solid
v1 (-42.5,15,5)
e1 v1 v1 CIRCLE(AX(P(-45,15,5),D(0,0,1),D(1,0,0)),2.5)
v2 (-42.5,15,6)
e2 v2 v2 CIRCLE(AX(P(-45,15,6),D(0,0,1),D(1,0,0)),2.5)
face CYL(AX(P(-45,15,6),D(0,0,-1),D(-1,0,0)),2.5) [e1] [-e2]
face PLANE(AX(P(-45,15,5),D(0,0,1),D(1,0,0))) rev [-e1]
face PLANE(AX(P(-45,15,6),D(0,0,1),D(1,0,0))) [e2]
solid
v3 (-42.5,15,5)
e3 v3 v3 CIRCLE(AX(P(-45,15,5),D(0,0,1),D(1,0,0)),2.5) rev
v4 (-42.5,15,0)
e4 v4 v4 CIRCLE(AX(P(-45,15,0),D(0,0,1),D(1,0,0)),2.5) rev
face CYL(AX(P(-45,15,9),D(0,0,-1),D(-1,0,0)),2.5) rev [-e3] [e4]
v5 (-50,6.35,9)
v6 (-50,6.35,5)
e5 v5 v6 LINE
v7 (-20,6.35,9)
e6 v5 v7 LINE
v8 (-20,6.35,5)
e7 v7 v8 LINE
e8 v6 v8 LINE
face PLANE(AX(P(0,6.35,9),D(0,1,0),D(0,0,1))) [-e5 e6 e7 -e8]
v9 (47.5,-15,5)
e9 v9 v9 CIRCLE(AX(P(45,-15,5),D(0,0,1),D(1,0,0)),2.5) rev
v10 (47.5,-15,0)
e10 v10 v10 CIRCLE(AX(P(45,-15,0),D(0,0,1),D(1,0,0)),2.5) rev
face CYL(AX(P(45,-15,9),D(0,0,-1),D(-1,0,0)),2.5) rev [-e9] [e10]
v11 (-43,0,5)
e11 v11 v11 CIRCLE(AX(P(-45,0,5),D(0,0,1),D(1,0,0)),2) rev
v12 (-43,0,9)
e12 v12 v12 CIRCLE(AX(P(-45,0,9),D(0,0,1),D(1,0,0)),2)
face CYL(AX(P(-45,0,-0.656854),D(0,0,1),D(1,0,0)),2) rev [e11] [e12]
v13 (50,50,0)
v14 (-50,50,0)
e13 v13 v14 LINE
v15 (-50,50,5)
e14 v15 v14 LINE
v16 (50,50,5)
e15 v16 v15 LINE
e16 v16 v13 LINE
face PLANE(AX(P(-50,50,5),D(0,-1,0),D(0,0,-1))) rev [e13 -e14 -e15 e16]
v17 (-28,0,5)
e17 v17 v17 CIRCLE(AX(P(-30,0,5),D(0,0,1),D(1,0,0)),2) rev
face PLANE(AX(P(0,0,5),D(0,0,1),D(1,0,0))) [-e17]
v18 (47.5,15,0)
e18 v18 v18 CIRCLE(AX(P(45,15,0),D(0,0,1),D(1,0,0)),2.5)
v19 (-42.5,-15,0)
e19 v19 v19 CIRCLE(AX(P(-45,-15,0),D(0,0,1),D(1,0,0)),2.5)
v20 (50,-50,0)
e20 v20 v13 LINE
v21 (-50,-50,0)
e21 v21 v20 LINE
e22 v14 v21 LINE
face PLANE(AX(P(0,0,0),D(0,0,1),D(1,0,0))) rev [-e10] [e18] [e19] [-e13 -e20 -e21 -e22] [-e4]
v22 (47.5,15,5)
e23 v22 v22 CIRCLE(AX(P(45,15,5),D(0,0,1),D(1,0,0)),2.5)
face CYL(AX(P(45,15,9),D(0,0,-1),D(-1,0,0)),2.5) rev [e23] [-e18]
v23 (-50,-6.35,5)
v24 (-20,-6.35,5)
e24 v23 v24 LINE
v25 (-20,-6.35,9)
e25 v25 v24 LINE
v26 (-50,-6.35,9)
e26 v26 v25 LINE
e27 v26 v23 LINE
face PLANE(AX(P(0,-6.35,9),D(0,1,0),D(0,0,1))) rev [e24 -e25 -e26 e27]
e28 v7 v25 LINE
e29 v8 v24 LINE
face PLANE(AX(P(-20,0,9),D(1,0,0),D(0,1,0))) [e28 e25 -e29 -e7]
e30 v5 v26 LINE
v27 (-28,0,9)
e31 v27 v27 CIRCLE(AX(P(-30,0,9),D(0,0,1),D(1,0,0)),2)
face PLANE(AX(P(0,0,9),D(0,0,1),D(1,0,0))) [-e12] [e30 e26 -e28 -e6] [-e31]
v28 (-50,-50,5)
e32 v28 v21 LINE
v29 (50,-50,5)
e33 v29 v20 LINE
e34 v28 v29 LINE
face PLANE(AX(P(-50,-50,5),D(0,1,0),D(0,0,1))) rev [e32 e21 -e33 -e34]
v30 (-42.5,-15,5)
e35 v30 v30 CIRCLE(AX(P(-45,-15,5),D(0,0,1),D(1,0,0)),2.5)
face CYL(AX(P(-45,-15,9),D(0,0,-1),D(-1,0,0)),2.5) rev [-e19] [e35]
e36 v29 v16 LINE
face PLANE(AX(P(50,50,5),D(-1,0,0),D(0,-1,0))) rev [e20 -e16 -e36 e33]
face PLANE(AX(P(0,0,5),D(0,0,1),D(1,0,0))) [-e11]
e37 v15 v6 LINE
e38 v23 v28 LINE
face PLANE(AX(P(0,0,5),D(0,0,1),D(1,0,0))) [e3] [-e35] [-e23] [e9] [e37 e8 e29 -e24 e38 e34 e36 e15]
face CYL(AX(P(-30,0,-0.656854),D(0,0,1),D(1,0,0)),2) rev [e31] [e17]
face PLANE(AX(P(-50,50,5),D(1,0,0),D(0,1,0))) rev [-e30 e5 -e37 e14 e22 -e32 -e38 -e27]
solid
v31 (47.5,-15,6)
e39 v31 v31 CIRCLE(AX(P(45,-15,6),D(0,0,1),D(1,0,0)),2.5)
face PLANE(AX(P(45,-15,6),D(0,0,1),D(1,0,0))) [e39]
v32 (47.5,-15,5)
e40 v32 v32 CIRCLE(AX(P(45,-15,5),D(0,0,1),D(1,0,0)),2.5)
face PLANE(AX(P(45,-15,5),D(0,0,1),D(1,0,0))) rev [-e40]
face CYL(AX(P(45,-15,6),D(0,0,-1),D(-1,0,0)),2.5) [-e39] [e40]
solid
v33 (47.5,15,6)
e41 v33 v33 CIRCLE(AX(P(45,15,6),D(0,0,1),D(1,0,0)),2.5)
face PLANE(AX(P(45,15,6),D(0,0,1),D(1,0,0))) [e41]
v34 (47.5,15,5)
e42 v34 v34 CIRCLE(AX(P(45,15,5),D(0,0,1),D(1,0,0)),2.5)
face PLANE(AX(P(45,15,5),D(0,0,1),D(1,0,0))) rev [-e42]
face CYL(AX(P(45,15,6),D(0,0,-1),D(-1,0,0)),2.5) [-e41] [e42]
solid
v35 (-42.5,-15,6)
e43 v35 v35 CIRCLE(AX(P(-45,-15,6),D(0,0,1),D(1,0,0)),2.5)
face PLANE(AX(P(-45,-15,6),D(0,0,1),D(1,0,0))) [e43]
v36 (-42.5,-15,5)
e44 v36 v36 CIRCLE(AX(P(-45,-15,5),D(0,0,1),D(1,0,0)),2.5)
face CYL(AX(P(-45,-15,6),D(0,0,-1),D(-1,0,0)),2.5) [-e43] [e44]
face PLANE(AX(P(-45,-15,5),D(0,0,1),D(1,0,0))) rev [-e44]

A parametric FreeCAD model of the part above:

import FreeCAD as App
import Part
import Sketcher

V = App.Vector

doc = App.newDocument("Part")
body = doc.addObject("PartDesign::Body", "Body")

sketch1 = body.newObject("Sketcher::SketchObject", "Sketch")
sketch1.AttachmentSupport = (doc.getObject("XY_Plane"), [""])
sketch1.MapMode = "FlatFace"
sketch1.addGeometry([
    Part.LineSegment(V(-50, 50, 0), V(-50, -50, 0)),
    Part.LineSegment(V(-50, -50, 0), V(50, -50, 0)),
    Part.LineSegment(V(50, -50, 0), V(50, 50, 0)),
    Part.LineSegment(V(50, 50, 0), V(-50, 50, 0)),
], False)
sketch1.addConstraint([
    Sketcher.Constraint("Coincident", 0, 2, 1, 1),
    Sketcher.Constraint("Coincident", 1, 2, 2, 1),
    Sketcher.Constraint("Coincident", 2, 2, 3, 1),
    Sketcher.Constraint("Coincident", 3, 2, 0, 1),
    Sketcher.Constraint("Vertical", 0),
    Sketcher.Constraint("Horizontal", 1),
    Sketcher.Constraint("Vertical", 2),
    Sketcher.Constraint("Horizontal", 3),
    Sketcher.Constraint("Symmetric", 0, 2, 2, 2, -1, 1),
    Sketcher.Constraint("Equal", 3, 0),
    Sketcher.Constraint("DistanceX", 1, 1, 1, 2, 100.0),
])
pad1 = body.newObject("PartDesign::Pad", "Pad")
pad1.Profile = sketch1
pad1.Length = 5

sketch2 = body.newObject("Sketcher::SketchObject", "Sketch001")
sketch2.AttachmentSupport = (doc.getObject("XY_Plane"), [""])
sketch2.MapMode = "FlatFace"
sketch2.AttachmentOffset = App.Placement(V(0, 0, 5), App.Rotation())
sketch2.addGeometry([
    Part.LineSegment(V(-50, 6, 0), V(-50, -6, 0)),
    Part.LineSegment(V(-50, -6, 0), V(-20, -6, 0)),
    Part.LineSegment(V(-20, -6, 0), V(-20, 6, 0)),
    Part.LineSegment(V(-20, 6, 0), V(-50, 6, 0)),
], False)
sketch2.addConstraint([
    Sketcher.Constraint("Coincident", 0, 2, 1, 1),
    Sketcher.Constraint("Coincident", 1, 2, 2, 1),
    Sketcher.Constraint("Coincident", 2, 2, 3, 1),
    Sketcher.Constraint("Coincident", 3, 2, 0, 1),
    Sketcher.Constraint("Vertical", 0),
    Sketcher.Constraint("Horizontal", 1),
    Sketcher.Constraint("Vertical", 2),
    Sketcher.Constraint("Horizontal", 3),
    Sketcher.Constraint("DistanceX", 1, 1, 1, 2, 30.0),
    Sketcher.Constraint("DistanceY", 0, 2, 0, 1, 12.7),
    Sketcher.Constraint("DistanceX", 0, 2, -1, 1, 50.0),
    Sketcher.Constraint("DistanceY", 0, 2, -1, 1, 6.35),
])
pad2 = body.newObject("PartDesign::Pad", "Pad001")
pad2.Profile = sketch2
pad2.Length = 4

sketch3 = body.newObject("Sketcher::SketchObject", "Sketch002")
sketch3.AttachmentSupport = (doc.getObject("XY_Plane"), [""])
sketch3.MapMode = "FlatFace"
sketch3.AttachmentOffset = App.Placement(V(0, 0, 5), App.Rotation())
sketch3.addGeometry([
    Part.Circle(V(-45, 15, 0), V(0, 0, 1), 2.5),
    Part.Circle(V(-45, -15, 0), V(0, 0, 1), 2.5),
    Part.Circle(V(45, 15, 0), V(0, 0, 1), 2.5),
    Part.Circle(V(45, -15, 0), V(0, 0, 1), 2.5),
], False)
sketch3.addConstraint([
    Sketcher.Constraint("Equal", 0, 1),
    Sketcher.Constraint("Equal", 1, 2),
    Sketcher.Constraint("Equal", 2, 3),
    Sketcher.Constraint("Symmetric", 1, 3, 2, 3, -1, 1),
    Sketcher.Constraint("Symmetric", 0, 3, 3, 3, -1, 1),
    Sketcher.Constraint("Symmetric", 0, 3, 2, 3, -2),
    Sketcher.Constraint("Diameter", 0, 5.0),
    Sketcher.Constraint("DistanceX", 0, 3, -1, 1, 45.0),
    Sketcher.Constraint("DistanceY", -1, 1, 0, 3, 15.0),
])
pocket1 = body.newObject("PartDesign::Pocket", "Pocket")
pocket1.Profile = sketch3
pocket1.Type = "ThroughAll"
pocket1.Midplane = True

sketch4 = body.newObject("Sketcher::SketchObject", "Sketch003")
sketch4.AttachmentSupport = (doc.getObject("XY_Plane"), [""])
sketch4.MapMode = "FlatFace"
sketch4.AttachmentOffset = App.Placement(V(0, 0, 9), App.Rotation())
sketch4.addGeometry([
    Part.Circle(V(-45, 0, 0), V(0, 0, 1), 2),
    Part.Circle(V(-30, 0, 0), V(0, 0, 1), 2),
], False)
sketch4.addConstraint([
    Sketcher.Constraint("Equal", 0, 1),
    Sketcher.Constraint("PointOnObject", 0, 3, -1),
    Sketcher.Constraint("PointOnObject", 1, 3, -1),
    Sketcher.Constraint("Diameter", 0, 4.0),
    Sketcher.Constraint("DistanceX", 0, 3, -1, 1, 45.0),
    Sketcher.Constraint("DistanceX", 1, 3, -1, 1, 30.0),
])
pocket2 = body.newObject("PartDesign::Pocket", "Pocket001")
pocket2.Profile = sketch4
pocket2.Length = 4
body2 = doc.addObject("PartDesign::Body", "Body001")

sketch5 = body2.newObject("Sketcher::SketchObject", "Sketch004")
sketch5.AttachmentSupport = (doc.getObject("XY_Plane001"), [""])
sketch5.MapMode = "FlatFace"
sketch5.AttachmentOffset = App.Placement(V(0, 0, 5), App.Rotation())
sketch5.addGeometry(Part.Circle(V(-45, 15, 0), V(0, 0, 1), 2.5), False)
sketch5.addConstraint([
    Sketcher.Constraint("Diameter", 0, 5.0),
    Sketcher.Constraint("DistanceX", 0, 3, -1, 1, 45.0),
    Sketcher.Constraint("DistanceY", -1, 1, 0, 3, 15.0),
])
pad3 = body2.newObject("PartDesign::Pad", "Pad002")
pad3.Profile = sketch5
pad3.Length = 1
body3 = doc.addObject("PartDesign::Body", "Body002")

sketch6 = body3.newObject("Sketcher::SketchObject", "Sketch005")
sketch6.AttachmentSupport = (doc.getObject("XY_Plane002"), [""])
sketch6.MapMode = "FlatFace"
sketch6.AttachmentOffset = App.Placement(V(0, 0, 5), App.Rotation())
sketch6.addGeometry(Part.Circle(V(45, 15, 0), V(0, 0, 1), 2.5), False)
sketch6.addConstraint([
    Sketcher.Constraint("Diameter", 0, 5.0),
    Sketcher.Constraint("DistanceX", -1, 1, 0, 3, 45.0),
    Sketcher.Constraint("DistanceY", -1, 1, 0, 3, 15.0),
])
pad4 = body3.newObject("PartDesign::Pad", "Pad003")
pad4.Profile = sketch6
pad4.Length = 1
body4 = doc.addObject("PartDesign::Body", "Body003")

sketch7 = body4.newObject("Sketcher::SketchObject", "Sketch006")
sketch7.AttachmentSupport = (doc.getObject("XY_Plane003"), [""])
sketch7.MapMode = "FlatFace"
sketch7.AttachmentOffset = App.Placement(V(0, 0, 5), App.Rotation())
sketch7.addGeometry(Part.Circle(V(-45, -15, 0), V(0, 0, 1), 2.5), False)
sketch7.addConstraint([
    Sketcher.Constraint("Diameter", 0, 5.0),
    Sketcher.Constraint("DistanceX", 0, 3, -1, 1, 45.0),
    Sketcher.Constraint("DistanceY", 0, 3, -1, 1, 15.0),
])
pad5 = body4.newObject("PartDesign::Pad", "Pad004")
pad5.Profile = sketch7
pad5.Length = 1
body5 = doc.addObject("PartDesign::Body", "Body004")

sketch8 = body5.newObject("Sketcher::SketchObject", "Sketch007")
sketch8.AttachmentSupport = (doc.getObject("XY_Plane004"), [""])
sketch8.MapMode = "FlatFace"
sketch8.AttachmentOffset = App.Placement(V(0, 0, 5), App.Rotation())
sketch8.addGeometry(Part.Circle(V(45, -15, 0), V(0, 0, 1), 2.5), False)
sketch8.addConstraint([
    Sketcher.Constraint("Diameter", 0, 5.0),
    Sketcher.Constraint("DistanceX", -1, 1, 0, 3, 45.0),
    Sketcher.Constraint("DistanceY", 0, 3, -1, 1, 15.0),
])
pad6 = body5.newObject("PartDesign::Pad", "Pad005")
pad6.Profile = sketch8
pad6.Length = 1

doc.recompute()
